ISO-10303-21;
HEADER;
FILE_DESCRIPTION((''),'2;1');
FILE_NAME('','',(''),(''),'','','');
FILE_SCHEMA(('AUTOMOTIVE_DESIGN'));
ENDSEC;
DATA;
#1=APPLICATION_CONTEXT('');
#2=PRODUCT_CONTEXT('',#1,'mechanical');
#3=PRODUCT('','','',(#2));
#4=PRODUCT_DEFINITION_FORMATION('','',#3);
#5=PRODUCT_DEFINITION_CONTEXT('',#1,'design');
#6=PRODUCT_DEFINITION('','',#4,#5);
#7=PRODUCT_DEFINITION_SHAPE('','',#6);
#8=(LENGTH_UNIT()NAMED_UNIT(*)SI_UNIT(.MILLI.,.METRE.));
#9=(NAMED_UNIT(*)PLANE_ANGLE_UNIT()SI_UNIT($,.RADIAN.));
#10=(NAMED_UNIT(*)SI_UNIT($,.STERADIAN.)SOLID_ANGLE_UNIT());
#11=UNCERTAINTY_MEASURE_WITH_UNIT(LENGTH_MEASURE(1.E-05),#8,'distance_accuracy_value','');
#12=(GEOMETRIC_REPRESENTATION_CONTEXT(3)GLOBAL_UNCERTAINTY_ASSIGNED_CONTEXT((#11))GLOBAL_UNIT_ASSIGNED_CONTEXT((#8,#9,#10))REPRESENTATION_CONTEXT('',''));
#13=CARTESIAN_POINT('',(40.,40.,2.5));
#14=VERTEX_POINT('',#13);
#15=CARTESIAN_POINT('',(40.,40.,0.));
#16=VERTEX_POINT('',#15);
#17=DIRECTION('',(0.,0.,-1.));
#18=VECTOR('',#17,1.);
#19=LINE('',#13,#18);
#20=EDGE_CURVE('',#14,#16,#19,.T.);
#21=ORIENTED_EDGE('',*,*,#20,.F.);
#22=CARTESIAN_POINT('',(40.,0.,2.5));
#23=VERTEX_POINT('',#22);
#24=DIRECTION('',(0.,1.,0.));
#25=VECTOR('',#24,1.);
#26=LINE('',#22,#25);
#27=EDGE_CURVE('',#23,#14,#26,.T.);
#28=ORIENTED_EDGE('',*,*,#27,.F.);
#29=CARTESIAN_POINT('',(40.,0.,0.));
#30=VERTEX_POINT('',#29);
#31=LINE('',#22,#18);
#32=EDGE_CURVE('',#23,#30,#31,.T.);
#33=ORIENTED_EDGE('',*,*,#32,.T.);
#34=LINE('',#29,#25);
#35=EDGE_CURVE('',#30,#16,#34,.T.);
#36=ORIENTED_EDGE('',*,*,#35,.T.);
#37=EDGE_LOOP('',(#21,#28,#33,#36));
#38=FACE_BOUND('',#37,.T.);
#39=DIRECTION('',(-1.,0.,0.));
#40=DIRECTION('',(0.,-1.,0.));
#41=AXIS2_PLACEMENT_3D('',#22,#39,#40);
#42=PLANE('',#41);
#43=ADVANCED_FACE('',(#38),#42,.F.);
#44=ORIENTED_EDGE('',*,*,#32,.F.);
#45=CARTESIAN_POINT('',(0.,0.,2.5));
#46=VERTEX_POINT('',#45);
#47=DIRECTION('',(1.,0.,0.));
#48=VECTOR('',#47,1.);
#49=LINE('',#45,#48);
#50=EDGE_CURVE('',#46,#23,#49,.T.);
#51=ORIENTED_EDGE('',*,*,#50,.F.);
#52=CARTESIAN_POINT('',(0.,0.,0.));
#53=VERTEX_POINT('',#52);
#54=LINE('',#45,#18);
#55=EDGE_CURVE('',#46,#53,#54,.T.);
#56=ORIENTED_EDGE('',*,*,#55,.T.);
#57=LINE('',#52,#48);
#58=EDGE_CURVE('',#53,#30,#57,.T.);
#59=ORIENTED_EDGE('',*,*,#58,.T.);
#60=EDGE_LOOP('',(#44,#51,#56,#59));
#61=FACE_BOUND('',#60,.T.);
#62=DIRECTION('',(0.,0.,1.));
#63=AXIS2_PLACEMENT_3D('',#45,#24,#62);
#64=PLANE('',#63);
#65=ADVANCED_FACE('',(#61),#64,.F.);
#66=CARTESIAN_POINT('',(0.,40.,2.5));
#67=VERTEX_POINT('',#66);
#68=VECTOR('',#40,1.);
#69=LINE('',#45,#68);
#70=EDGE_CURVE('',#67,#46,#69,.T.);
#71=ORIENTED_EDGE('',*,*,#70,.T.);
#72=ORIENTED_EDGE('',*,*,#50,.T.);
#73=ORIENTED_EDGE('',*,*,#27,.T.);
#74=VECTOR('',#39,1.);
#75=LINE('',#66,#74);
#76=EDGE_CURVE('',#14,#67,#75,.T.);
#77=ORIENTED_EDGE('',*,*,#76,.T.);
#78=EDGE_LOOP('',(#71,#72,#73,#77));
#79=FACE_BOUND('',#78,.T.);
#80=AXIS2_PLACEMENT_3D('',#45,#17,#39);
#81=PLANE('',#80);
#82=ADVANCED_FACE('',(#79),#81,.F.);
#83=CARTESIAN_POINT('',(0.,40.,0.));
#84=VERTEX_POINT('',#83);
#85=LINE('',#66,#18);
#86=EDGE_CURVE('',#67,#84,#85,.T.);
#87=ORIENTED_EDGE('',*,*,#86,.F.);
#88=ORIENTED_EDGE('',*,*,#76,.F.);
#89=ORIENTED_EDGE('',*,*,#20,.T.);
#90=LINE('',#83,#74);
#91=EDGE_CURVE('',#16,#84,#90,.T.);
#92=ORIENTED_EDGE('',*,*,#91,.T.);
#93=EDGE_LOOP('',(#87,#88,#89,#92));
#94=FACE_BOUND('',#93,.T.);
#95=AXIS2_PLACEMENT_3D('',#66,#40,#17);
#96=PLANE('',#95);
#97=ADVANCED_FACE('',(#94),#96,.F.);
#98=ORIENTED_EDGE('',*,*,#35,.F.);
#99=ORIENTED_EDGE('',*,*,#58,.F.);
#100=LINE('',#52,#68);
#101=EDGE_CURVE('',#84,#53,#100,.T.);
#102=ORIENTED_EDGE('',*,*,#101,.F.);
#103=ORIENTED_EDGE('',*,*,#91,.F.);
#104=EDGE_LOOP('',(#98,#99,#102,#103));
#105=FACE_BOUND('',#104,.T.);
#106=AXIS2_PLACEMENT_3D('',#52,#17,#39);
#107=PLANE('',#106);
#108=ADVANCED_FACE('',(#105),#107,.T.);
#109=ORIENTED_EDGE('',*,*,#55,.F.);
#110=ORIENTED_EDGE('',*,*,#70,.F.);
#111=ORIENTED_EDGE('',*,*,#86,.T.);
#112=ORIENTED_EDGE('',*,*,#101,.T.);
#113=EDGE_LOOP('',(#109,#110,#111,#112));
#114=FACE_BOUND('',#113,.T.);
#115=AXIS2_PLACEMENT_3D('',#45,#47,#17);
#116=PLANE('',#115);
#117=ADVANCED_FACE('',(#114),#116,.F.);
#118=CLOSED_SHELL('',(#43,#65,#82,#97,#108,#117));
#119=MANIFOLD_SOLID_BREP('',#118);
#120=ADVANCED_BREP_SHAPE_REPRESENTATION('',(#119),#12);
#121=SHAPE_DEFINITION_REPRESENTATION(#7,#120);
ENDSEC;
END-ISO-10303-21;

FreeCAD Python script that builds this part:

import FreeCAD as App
import Part
import Sketcher
Q = App.Units.Quantity


def add_polygon(sketch, points):
    """Adds a closed chain of lines whose ends are joined by coincident constraints."""
    first, n = sketch.GeometryCount, len(points)
    for a, b in zip(points, points[1:] + points[:1]):
        sketch.addGeometry(Part.LineSegment(App.Vector(*a, 0), App.Vector(*b, 0)), False)
    for i in range(n):
        sketch.addConstraint(Sketcher.Constraint("Coincident", first + i, 2, first + (i + 1) % n, 1))

doc = App.newDocument("Part")
body = doc.addObject("PartDesign::Body", "Body")

# Sketch on XY plane
sketch1 = doc.addObject("Sketcher::SketchObject", "Sketch")
body.addObject(sketch1)
sketch1.AttachmentSupport = (doc.XY_Plane, [""])
sketch1.MapMode = "FlatFace"
add_polygon(sketch1, [(0, 40), (0, 0), (40, 0), (40, 40)])  # lines 0-3
sketch1.addConstraint(Sketcher.Constraint("Vertical", 0))
sketch1.addConstraint(Sketcher.Constraint("Horizontal", 1))
sketch1.addConstraint(Sketcher.Constraint("Vertical", 2))
sketch1.addConstraint(Sketcher.Constraint("Horizontal", 3))
sketch1.addConstraint(Sketcher.Constraint("Coincident", 0, 2, -1, 1))
sketch1.addConstraint(Sketcher.Constraint("Equal", 3, 0))
sketch1.addConstraint(Sketcher.Constraint("DistanceX", 1, 1, 1, 2, Q("40 mm")))
pad1 = doc.addObject("PartDesign::Pad", "Pad")
body.addObject(pad1)
pad1.Profile = sketch1
pad1.Length = 2.5

doc.recompute()
